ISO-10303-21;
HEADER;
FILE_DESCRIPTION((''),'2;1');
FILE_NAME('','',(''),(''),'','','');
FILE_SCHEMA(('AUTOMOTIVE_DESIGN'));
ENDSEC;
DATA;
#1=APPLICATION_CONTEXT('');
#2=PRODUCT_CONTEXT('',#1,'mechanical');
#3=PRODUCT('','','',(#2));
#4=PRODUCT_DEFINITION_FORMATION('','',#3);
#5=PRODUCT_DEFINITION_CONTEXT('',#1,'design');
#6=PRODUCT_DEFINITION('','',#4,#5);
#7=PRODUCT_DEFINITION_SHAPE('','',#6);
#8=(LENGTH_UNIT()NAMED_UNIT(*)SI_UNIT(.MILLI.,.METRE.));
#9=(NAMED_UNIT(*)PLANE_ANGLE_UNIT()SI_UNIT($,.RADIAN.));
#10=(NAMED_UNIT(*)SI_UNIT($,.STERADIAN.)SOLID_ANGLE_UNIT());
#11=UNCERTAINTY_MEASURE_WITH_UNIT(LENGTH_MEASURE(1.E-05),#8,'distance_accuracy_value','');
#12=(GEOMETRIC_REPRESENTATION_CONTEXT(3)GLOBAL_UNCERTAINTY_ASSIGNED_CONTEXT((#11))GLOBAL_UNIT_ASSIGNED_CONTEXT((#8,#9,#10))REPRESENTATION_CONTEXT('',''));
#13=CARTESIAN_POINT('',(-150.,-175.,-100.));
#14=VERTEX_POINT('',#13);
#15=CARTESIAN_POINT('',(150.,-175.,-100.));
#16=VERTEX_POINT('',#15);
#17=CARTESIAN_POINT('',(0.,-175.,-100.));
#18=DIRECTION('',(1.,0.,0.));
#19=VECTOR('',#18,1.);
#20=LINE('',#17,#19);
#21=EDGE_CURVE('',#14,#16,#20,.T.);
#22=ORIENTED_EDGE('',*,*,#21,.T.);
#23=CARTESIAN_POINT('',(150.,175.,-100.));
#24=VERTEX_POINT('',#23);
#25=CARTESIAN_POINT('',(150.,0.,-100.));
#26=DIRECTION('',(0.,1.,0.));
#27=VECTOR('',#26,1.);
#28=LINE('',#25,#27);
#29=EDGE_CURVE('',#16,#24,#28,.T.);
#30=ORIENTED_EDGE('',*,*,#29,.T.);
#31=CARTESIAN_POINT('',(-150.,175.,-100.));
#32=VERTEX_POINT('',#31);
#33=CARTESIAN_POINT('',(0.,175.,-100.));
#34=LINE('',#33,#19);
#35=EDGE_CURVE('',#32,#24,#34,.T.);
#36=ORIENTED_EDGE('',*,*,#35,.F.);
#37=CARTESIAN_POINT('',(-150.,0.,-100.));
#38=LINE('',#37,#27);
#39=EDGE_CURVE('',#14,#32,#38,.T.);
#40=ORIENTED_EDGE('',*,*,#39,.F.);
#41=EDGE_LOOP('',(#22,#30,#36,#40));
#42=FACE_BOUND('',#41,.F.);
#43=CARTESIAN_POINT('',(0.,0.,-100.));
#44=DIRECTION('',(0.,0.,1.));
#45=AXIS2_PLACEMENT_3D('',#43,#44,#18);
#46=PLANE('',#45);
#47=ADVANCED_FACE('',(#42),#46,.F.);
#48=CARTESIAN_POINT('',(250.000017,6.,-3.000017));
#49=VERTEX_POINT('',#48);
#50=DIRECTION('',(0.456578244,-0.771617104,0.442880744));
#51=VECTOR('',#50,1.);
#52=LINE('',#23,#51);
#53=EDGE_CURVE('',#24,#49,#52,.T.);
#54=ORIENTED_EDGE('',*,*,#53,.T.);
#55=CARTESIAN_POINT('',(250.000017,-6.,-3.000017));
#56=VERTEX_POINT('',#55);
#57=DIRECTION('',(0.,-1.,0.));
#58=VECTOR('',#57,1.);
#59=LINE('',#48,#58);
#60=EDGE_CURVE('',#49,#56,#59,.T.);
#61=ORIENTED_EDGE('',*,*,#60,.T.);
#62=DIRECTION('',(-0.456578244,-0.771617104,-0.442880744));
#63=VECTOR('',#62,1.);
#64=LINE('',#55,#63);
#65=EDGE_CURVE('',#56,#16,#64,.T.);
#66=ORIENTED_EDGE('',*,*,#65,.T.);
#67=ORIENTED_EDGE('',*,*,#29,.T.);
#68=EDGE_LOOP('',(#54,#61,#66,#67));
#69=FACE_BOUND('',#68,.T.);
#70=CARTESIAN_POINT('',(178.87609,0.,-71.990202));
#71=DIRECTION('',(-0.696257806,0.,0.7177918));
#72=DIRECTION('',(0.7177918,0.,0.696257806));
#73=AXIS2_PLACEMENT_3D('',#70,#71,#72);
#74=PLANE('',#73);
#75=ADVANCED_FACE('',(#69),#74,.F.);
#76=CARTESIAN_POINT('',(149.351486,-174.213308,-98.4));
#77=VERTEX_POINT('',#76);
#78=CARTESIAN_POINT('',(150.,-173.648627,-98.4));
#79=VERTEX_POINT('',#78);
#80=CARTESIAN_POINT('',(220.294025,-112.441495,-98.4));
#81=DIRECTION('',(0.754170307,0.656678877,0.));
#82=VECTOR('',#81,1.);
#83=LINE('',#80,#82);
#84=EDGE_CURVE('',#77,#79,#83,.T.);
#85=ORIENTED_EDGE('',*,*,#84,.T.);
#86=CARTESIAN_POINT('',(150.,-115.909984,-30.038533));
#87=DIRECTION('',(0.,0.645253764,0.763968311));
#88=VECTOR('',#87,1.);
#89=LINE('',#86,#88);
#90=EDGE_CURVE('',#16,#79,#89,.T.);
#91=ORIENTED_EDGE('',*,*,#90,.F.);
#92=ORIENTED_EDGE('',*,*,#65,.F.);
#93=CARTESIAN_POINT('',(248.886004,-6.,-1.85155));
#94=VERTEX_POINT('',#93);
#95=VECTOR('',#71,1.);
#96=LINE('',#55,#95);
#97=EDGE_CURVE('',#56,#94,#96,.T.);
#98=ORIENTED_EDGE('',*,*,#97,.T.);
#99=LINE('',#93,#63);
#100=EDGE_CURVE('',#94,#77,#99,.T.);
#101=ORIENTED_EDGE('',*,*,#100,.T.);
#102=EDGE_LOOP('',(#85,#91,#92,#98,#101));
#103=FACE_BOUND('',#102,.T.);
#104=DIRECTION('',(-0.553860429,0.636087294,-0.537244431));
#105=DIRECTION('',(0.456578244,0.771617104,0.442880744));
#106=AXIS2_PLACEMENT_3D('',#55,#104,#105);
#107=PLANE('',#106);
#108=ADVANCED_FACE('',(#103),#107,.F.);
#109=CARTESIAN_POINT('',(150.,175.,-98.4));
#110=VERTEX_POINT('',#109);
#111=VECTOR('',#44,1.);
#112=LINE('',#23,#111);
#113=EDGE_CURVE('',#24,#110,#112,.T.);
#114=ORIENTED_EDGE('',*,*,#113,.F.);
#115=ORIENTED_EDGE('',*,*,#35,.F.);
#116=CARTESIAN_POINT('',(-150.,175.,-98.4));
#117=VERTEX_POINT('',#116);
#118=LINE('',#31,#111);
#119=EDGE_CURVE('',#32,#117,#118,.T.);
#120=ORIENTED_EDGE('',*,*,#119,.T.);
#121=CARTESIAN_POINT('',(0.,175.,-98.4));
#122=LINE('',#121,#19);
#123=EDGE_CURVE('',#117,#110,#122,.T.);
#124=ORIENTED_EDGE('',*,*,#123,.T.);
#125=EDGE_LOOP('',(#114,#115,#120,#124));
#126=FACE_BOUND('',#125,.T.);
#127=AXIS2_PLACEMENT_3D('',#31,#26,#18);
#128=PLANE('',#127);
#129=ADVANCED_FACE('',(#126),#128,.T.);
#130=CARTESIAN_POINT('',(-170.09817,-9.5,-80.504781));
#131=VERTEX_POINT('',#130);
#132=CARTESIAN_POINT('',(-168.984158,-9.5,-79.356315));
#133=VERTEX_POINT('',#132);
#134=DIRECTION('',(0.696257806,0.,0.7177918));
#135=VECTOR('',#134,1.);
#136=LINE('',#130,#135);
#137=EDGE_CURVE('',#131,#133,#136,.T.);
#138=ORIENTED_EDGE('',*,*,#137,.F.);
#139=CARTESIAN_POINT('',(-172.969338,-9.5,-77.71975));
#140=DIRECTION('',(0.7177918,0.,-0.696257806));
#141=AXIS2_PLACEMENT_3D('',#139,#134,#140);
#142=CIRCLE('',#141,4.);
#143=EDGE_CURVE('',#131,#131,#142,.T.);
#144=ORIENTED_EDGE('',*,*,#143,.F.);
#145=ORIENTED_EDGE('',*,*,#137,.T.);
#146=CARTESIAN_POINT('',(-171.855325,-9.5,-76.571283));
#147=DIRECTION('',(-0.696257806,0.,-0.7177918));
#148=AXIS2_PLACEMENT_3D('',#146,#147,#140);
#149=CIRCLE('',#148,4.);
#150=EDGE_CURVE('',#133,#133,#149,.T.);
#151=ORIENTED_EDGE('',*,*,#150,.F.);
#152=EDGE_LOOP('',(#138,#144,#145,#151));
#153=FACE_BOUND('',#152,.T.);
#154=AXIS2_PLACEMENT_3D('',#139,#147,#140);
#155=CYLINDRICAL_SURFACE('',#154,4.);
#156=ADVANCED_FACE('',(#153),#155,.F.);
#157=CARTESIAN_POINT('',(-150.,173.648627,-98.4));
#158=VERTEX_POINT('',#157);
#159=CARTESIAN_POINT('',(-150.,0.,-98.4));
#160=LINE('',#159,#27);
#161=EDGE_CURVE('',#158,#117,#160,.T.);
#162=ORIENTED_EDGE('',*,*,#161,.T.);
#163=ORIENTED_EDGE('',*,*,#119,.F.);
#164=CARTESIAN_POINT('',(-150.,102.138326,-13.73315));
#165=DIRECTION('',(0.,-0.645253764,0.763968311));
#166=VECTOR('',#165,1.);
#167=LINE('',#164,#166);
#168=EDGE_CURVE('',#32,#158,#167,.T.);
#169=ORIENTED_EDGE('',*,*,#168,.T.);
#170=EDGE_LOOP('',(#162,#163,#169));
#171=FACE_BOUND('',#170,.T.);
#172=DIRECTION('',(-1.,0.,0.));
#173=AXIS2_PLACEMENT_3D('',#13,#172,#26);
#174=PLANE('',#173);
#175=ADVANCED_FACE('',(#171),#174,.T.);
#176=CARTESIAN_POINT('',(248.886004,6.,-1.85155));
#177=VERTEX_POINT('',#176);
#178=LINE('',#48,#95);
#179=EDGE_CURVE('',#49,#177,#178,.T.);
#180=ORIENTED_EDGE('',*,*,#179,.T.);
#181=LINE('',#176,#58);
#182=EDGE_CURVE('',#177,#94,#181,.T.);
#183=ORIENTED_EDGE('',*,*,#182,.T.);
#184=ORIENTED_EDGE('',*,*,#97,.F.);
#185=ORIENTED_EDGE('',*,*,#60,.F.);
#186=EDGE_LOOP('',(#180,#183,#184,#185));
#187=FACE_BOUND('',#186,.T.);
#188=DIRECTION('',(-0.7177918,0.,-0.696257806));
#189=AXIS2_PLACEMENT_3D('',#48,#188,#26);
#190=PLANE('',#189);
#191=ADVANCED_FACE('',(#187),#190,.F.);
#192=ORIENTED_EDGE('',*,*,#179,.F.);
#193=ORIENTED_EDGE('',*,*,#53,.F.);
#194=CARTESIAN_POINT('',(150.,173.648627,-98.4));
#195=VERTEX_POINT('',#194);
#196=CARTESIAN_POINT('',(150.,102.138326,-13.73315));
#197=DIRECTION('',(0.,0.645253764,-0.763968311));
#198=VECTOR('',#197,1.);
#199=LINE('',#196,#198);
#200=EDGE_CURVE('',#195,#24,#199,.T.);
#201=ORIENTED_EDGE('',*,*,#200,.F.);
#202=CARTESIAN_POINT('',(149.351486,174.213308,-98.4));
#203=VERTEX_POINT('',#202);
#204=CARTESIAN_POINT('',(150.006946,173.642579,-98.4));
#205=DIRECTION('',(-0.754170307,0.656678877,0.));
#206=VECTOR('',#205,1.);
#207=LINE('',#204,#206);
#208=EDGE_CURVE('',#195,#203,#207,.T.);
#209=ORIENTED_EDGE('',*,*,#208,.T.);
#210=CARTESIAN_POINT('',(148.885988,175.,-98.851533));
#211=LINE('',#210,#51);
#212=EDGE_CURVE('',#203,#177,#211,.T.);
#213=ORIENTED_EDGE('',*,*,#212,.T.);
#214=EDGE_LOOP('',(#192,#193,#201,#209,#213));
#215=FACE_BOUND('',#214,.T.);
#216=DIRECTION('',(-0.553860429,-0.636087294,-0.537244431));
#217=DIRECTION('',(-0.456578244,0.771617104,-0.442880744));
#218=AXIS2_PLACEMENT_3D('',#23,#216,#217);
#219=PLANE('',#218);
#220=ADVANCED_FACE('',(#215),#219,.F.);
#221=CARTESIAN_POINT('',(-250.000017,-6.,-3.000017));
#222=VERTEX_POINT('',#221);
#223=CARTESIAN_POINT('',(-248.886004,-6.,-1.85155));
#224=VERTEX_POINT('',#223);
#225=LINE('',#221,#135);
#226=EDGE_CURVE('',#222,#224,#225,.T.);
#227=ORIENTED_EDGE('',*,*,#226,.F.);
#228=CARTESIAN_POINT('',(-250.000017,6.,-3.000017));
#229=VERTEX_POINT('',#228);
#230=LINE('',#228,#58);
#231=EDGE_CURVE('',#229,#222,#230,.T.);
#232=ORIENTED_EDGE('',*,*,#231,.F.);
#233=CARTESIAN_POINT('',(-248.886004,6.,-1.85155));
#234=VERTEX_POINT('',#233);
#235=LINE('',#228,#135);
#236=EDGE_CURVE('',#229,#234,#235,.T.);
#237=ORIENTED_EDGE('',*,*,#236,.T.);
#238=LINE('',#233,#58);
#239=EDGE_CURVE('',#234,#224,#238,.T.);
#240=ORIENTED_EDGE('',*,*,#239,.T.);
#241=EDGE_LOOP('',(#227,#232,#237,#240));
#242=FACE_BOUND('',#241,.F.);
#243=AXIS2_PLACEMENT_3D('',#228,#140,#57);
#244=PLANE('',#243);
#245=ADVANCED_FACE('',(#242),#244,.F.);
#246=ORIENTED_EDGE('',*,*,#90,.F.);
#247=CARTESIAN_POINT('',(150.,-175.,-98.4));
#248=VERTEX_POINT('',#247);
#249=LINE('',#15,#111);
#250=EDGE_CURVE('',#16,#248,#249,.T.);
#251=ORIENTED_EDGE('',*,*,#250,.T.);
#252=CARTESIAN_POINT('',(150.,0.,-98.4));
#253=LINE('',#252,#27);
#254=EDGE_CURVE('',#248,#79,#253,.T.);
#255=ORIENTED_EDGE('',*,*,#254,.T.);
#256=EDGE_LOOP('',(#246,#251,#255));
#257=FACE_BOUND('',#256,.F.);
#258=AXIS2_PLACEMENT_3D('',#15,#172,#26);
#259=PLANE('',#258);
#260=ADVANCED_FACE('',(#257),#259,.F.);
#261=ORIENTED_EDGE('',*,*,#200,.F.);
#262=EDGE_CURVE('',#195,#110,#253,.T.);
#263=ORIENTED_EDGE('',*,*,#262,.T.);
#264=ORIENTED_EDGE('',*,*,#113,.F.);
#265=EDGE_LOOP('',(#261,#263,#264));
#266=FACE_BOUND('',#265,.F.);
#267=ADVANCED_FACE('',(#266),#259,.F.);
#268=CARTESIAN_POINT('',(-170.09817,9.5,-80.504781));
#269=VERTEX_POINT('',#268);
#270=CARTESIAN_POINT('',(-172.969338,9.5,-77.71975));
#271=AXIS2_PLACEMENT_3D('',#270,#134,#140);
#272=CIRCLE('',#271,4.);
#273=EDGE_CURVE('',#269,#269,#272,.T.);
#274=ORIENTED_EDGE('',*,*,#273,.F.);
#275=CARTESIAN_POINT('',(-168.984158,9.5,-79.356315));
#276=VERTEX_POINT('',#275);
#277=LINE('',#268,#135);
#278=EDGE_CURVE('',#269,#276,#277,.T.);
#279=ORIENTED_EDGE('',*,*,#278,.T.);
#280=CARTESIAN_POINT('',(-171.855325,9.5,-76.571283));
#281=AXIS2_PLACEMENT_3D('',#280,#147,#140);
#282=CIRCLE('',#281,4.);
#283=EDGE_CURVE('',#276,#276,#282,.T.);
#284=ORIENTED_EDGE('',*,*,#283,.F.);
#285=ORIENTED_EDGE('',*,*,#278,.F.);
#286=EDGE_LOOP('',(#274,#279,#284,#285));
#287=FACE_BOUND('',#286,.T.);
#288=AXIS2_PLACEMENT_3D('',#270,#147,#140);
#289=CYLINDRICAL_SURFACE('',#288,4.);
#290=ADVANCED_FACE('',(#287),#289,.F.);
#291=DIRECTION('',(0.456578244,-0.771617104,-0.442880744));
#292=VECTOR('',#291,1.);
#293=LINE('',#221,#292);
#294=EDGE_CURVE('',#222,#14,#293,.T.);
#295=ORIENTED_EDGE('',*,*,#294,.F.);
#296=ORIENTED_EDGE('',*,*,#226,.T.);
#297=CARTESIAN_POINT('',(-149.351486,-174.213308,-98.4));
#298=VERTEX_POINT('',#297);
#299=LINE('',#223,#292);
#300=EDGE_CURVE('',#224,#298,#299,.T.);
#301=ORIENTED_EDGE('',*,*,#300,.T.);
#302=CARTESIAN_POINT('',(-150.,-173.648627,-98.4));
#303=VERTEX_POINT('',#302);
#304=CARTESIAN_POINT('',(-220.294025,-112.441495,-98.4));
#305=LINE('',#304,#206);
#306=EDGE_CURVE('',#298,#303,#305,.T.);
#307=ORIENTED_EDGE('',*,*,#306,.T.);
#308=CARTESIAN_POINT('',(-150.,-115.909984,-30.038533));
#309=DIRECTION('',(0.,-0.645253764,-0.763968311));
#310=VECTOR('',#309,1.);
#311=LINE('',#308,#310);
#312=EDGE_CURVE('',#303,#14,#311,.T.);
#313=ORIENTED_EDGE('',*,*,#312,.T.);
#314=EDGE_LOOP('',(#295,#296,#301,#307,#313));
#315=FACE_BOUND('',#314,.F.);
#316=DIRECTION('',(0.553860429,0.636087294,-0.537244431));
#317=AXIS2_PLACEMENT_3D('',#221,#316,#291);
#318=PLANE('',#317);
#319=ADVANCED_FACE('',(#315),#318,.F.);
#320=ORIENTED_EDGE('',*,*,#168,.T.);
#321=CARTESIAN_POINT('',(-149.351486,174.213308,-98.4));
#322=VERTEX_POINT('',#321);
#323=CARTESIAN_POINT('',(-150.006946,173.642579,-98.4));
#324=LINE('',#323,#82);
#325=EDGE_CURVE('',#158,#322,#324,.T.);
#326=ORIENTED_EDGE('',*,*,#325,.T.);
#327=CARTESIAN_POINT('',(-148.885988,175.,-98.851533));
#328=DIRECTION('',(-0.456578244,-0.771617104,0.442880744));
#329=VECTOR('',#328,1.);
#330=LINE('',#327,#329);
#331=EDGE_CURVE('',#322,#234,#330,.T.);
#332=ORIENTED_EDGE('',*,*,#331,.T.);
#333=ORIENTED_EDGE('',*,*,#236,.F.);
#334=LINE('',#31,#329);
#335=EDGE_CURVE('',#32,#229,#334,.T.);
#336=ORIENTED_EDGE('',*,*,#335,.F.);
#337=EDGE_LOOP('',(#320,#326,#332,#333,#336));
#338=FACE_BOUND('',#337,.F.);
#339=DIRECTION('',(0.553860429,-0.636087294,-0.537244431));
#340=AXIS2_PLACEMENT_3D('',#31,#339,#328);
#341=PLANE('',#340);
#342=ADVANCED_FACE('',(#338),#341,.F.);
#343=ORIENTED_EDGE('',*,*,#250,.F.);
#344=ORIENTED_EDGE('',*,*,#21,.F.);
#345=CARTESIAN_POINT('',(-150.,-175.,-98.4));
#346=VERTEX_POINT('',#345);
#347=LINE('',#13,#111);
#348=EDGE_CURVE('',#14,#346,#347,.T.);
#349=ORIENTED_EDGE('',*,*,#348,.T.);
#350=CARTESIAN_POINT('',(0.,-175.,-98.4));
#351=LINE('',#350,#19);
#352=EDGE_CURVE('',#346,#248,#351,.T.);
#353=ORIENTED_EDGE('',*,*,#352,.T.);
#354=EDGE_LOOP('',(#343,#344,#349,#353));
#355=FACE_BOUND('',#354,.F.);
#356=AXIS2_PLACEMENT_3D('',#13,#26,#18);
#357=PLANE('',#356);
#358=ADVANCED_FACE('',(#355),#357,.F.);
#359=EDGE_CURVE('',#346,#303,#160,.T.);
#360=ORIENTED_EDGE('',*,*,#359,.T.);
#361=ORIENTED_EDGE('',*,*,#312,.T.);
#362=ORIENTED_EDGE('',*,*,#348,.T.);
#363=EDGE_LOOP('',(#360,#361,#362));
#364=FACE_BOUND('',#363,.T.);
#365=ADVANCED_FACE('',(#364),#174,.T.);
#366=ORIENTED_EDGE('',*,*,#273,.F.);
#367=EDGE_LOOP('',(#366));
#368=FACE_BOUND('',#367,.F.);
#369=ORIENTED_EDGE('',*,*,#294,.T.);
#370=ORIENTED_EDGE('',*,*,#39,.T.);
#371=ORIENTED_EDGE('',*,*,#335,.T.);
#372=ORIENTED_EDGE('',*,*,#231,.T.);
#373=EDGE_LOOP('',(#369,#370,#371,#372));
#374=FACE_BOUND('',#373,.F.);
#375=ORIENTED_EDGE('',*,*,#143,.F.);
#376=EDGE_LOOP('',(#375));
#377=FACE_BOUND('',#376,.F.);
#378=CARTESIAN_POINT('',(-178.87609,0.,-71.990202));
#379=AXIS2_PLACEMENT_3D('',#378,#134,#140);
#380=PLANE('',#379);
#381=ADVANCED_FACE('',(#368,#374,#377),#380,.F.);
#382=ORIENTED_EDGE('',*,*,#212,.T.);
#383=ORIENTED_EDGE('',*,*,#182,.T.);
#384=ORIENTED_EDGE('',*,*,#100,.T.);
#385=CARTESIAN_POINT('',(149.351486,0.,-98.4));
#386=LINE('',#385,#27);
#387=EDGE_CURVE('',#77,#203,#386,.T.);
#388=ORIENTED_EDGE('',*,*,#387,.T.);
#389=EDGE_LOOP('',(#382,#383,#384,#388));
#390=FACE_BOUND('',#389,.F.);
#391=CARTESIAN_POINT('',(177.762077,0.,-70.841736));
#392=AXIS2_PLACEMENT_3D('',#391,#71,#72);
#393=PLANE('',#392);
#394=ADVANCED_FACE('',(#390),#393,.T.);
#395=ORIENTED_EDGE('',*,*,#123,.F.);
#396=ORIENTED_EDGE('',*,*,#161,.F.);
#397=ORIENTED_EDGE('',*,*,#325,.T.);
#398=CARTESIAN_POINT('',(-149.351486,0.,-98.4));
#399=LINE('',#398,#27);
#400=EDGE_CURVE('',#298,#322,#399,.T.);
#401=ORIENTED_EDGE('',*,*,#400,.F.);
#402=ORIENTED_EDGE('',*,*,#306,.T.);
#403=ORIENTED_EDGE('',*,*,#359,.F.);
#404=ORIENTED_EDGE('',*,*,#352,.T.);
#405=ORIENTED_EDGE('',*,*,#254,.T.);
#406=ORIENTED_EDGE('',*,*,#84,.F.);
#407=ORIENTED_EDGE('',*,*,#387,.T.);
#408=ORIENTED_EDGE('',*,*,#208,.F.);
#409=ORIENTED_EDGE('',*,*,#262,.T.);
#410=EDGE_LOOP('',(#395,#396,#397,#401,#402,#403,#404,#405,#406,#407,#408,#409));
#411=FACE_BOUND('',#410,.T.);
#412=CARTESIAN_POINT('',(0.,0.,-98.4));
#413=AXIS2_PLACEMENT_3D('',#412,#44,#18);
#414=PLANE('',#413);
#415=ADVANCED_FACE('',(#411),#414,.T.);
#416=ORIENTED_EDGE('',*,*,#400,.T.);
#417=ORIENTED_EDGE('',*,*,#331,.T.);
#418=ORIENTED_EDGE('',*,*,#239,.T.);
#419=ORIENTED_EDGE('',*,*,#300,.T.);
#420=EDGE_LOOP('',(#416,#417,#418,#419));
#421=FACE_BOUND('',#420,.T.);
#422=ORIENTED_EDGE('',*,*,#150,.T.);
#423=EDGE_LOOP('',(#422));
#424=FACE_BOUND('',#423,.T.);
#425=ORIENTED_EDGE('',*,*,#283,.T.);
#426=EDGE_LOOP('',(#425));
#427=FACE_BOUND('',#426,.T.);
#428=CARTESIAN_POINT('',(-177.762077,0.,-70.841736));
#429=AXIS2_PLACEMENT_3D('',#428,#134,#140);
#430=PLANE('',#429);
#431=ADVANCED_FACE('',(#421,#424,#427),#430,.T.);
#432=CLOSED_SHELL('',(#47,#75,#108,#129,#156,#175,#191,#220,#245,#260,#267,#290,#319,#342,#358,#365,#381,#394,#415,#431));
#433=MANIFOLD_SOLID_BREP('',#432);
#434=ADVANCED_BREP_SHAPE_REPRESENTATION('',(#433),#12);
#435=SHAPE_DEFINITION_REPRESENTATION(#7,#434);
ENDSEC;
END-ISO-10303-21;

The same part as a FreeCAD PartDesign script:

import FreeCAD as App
import Part
import Sketcher

V = App.Vector
Q = App.Units.Quantity


def add_polygon(sketch, points):
    """Adds a closed chain of lines whose ends are joined by coincident constraints."""
    first, n = sketch.GeometryCount, len(points)
    for a, b in zip(points, points[1:] + points[:1]):
        sketch.addGeometry(Part.LineSegment(App.Vector(*a, 0), App.Vector(*b, 0)), False)
    for i in range(n):
        sketch.addConstraint(Sketcher.Constraint("Coincident", first + i, 2, first + (i + 1) % n, 1))

doc = App.newDocument("Part")
body = doc.addObject("PartDesign::Body", "Body")

# Sketch on XY plane
sketch1 = body.newObject("Sketcher::SketchObject", "Sketch")
sketch1.AttachmentSupport = (doc.getObject("XY_Plane"), [""])
sketch1.MapMode = "FlatFace"
add_polygon(sketch1, [(-150, 175), (-150, -175), (150, -175), (150, 175)])  # lines 0-3
sketch1.addConstraint(Sketcher.Constraint("Vertical", 0))
sketch1.addConstraint(Sketcher.Constraint("Horizontal", 1))
sketch1.addConstraint(Sketcher.Constraint("Vertical", 2))
sketch1.addConstraint(Sketcher.Constraint("Horizontal", 3))
sketch1.addConstraint(Sketcher.Constraint("Symmetric", 0, 2, 2, 2, -1, 1))
sketch1.addConstraint(Sketcher.Constraint("DistanceX", 1, 1, 1, 2, Q("300 mm")))
sketch1.addConstraint(Sketcher.Constraint("DistanceY", 0, 2, 0, 1, Q("350 mm")))
pad1 = body.newObject("PartDesign::Pad", "Pad")
pad1.Profile = sketch1
pad1.Length = 1.6

# Sketch on an angled plane
sketch2 = body.newObject("Sketcher::SketchObject", "Sketch001")
sketch2.Placement = App.Placement(V(-150, 0, 0), App.Rotation(V(0.7177918, 0, -0.696257806), V(0, 1.000000001, 0), V(0.696257806, 0, 0.7177918), "ZXY"))
add_polygon(sketch2, [(0, -175), (0, 175), (-139, 6), (-139, -6)])  # lines 0-3
sketch2.addConstraint(Sketcher.Constraint("Vertical", 0))
sketch2.addConstraint(Sketcher.Constraint("Vertical", 2))
sketch2.addConstraint(Sketcher.Constraint("Symmetric", 0, 2, 3, 2, -1, 1))
sketch2.addConstraint(Sketcher.Constraint("Equal", 1, 3))
sketch2.addConstraint(Sketcher.Constraint("DistanceY", 0, 1, 0, 2, Q("350 mm")))
sketch2.addConstraint(Sketcher.Constraint("DistanceY", 2, 2, 2, 1, Q("12 mm")))
sketch2.addConstraint(Sketcher.Constraint("Distance", 1, Q("219.020547 mm")))
pad2 = body.newObject("PartDesign::Pad", "Pad001")
pad2.Profile = sketch2
pad2.Length = 1.6
doc.recompute()

mirrored = body.newObject("PartDesign::Mirrored", "Mirrored")
mirrored.Originals = [pad2]
mirrored.MirrorPlane = (doc.getObject("YZ_Plane"), [""])
body.Tip = mirrored

# Sketch on an angled plane
sketch3 = body.newObject("Sketcher::SketchObject", "Sketch002")
sketch3.Placement = App.Placement(V(-150, 0, 0), App.Rotation(V(0.7177918, 0, -0.696257806), V(0, 1.000000001, 0), V(0.696257806, 0, 0.7177918), "ZXY"))
sketch3.addGeometry(Part.Circle(V(-32, 9.5, 0), V(0, 0, 1), 4), False)
sketch3.addGeometry(Part.Circle(V(-32, -9.5, 0), V(0, 0, 1), 4), False)
sketch3.addConstraint(Sketcher.Constraint("Equal", 0, 1))
sketch3.addConstraint(Sketcher.Constraint("Symmetric", 0, 3, 1, 3, -1))
sketch3.addConstraint(Sketcher.Constraint("Diameter", 0, Q("8 mm")))
sketch3.addConstraint(Sketcher.Constraint("DistanceX", 0, 3, -1, 1, Q("32 mm")))
sketch3.addConstraint(Sketcher.Constraint("DistanceY", 1, 3, 0, 3, Q("19 mm")))
pocket1 = body.newObject("PartDesign::Pocket", "Pocket")
pocket1.Profile = sketch3
pocket1.Length = 348.954325
pocket1.Reversed = True
body2 = doc.addObject("PartDesign::Body", "Body001")
doc.recompute()

body.Placement = App.Placement(V(0, 0, -100), App.Rotation(V(0, 0, 1), 0))
boolean = body2.newObject("PartDesign::Boolean", "Boolean")
boolean.Type = "Fuse"
boolean.addObjects([body])

doc.recompute()
